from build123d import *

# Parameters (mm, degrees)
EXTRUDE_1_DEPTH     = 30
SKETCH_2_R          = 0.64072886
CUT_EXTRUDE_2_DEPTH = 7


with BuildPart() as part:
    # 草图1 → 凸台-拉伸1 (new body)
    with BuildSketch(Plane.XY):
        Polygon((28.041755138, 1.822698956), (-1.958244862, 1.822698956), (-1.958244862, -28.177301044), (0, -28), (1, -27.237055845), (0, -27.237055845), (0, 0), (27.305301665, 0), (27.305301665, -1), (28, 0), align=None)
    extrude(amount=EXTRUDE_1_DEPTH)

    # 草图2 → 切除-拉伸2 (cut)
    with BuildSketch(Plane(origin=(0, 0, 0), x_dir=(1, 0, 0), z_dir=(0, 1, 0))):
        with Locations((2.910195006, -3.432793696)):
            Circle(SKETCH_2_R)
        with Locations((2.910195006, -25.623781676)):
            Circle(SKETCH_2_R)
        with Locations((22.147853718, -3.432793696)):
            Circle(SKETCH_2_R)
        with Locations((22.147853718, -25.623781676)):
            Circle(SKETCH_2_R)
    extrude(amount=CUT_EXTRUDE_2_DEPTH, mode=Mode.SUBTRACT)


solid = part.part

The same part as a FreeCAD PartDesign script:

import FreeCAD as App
import Part
import Sketcher

V = App.Vector

doc = App.newDocument("Part")
params = doc.addObject("Spreadsheet::Sheet", "Params")
for row, (alias, value) in enumerate([
    ("sketch1_width", "30 mm"),
    ("sketch1_width2", "1 mm"),
    ("pad1_length", "30 mm"),
    ("pocket1_length", "7 mm"),
], start=1):
    params.set(f"A{row}", alias)
    params.set(f"B{row}", "=" + value)
    params.setAlias(f"B{row}", alias)

body = doc.addObject("PartDesign::Body", "Body")

sketch1 = doc.addObject("Sketcher::SketchObject", "Sketch")
body.addObject(sketch1)
sketch1.AttachmentSupport = (doc.XY_Plane, [""])
sketch1.MapMode = "FlatFace"
sketch1.addGeometry([
    Part.LineSegment(V(28, 1.8, 0), V(-2, 1.8, 0)),
    Part.LineSegment(V(-2, 1.8, 0), V(-2, -28.2, 0)),
    Part.LineSegment(V(-2, -28.2, 0), V(0, -28, 0)),
    Part.LineSegment(V(0, -28, 0), V(1, -27.2, 0)),
    Part.LineSegment(V(1, -27.2, 0), V(0, -27.2, 0)),
    Part.LineSegment(V(0, -27.2, 0), V(0, 0, 0)),
    Part.LineSegment(V(0, 0, 0), V(27.3, 0, 0)),
    Part.LineSegment(V(27.3, 0, 0), V(27.3, -1, 0)),
    Part.LineSegment(V(27.3, -1, 0), V(28, 0, 0)),
    Part.LineSegment(V(28, 0, 0), V(28, 1.8, 0)),
], False)
sketch1.addConstraint([
    Sketcher.Constraint("Coincident", 0, 2, 1, 1),
    Sketcher.Constraint("Coincident", 1, 2, 2, 1),
    Sketcher.Constraint("Coincident", 2, 2, 3, 1),
    Sketcher.Constraint("Coincident", 3, 2, 4, 1),
    Sketcher.Constraint("Coincident", 4, 2, 5, 1),
    Sketcher.Constraint("Coincident", 5, 2, 6, 1),
    Sketcher.Constraint("Coincident", 6, 2, 7, 1),
    Sketcher.Constraint("Coincident", 7, 2, 8, 1),
    Sketcher.Constraint("Coincident", 8, 2, 9, 1),
    Sketcher.Constraint("Coincident", 9, 2, 0, 1),
    Sketcher.Constraint("Horizontal", 0),
    Sketcher.Constraint("Vertical", 1),
    Sketcher.Constraint("Horizontal", 4),
    Sketcher.Constraint("Vertical", 5),
    Sketcher.Constraint("Horizontal", 6),
    Sketcher.Constraint("Vertical", 7),
    Sketcher.Constraint("Coincident", 5, 2, -1, 1),
    Sketcher.Constraint("PointOnObject", 2, 2, -2),
    Sketcher.Constraint("PointOnObject", 8, 2, -1),
    Sketcher.Constraint("Equal", 0, 1),
    Sketcher.Constraint("Equal", 4, 7),
    Sketcher.Constraint("DistanceX", 0, 2, 0, 1, 30.0),
    Sketcher.Constraint("DistanceX", 4, 2, 4, 1, 1.0),
    Sketcher.Constraint("DistanceY", 2, 2, -1, 1, 28.0),
    Sketcher.Constraint("DistanceX", -1, 1, 8, 2, 28.0),
    Sketcher.Constraint("DistanceX", 6, 1, 6, 2, 27.305302),
    Sketcher.Constraint("DistanceY", -1, 1, 0, 2, 1.822699),
    Sketcher.Constraint("Distance", 3, 1.257809),
    Sketcher.Constraint("Distance", 2, 1.966255),
])
sketch1.setExpression("Constraints[21]", "Params.sketch1_width")
sketch1.setExpression("Constraints[22]", "Params.sketch1_width2")
pad1 = doc.addObject("PartDesign::Pad", "Pad")
body.addObject(pad1)
pad1.Profile = sketch1
pad1.setExpression("Length", "Params.pad1_length")

sketch2 = doc.addObject("Sketcher::SketchObject", "Sketch001")
body.addObject(sketch2)
sketch2.AttachmentSupport = (doc.XZ_Plane, [""])
sketch2.MapMode = "FlatFace"
sketch2.addGeometry([
    Part.Circle(V(2.9, 3.4, 0), V(0, 0, 1), 0.6),
    Part.Circle(V(2.9, 25.6, 0), V(0, 0, 1), 0.6),
    Part.Circle(V(22.1, 3.4, 0), V(0, 0, 1), 0.6),
    Part.Circle(V(22.1, 25.6, 0), V(0, 0, 1), 0.6),
], False)
sketch2.addConstraint([
    Sketcher.Constraint("Equal", 0, 1),
    Sketcher.Constraint("Equal", 1, 2),
    Sketcher.Constraint("Equal", 2, 3),
    Sketcher.Constraint("Horizontal", 0, 3, 2, 3),
    Sketcher.Constraint("Horizontal", 1, 3, 3, 3),
    Sketcher.Constraint("Vertical", 0, 3, 1, 3),
    Sketcher.Constraint("Vertical", 2, 3, 3, 3),
    Sketcher.Constraint("Diameter", 0, 1.281458),
    Sketcher.Constraint("DistanceY", -1, 1, 1, 3, 25.623782),
    Sketcher.Constraint("DistanceX", 0, 3, 2, 3, 19.237659),
    Sketcher.Constraint("DistanceX", -1, 1, 0, 3, 2.910195),
    Sketcher.Constraint("DistanceY", -1, 1, 0, 3, 3.432794),
])
pocket1 = doc.addObject("PartDesign::Pocket", "Pocket")
body.addObject(pocket1)
pocket1.Profile = sketch2
pocket1.setExpression("Length", "Params.pocket1_length")

doc.recompute()
